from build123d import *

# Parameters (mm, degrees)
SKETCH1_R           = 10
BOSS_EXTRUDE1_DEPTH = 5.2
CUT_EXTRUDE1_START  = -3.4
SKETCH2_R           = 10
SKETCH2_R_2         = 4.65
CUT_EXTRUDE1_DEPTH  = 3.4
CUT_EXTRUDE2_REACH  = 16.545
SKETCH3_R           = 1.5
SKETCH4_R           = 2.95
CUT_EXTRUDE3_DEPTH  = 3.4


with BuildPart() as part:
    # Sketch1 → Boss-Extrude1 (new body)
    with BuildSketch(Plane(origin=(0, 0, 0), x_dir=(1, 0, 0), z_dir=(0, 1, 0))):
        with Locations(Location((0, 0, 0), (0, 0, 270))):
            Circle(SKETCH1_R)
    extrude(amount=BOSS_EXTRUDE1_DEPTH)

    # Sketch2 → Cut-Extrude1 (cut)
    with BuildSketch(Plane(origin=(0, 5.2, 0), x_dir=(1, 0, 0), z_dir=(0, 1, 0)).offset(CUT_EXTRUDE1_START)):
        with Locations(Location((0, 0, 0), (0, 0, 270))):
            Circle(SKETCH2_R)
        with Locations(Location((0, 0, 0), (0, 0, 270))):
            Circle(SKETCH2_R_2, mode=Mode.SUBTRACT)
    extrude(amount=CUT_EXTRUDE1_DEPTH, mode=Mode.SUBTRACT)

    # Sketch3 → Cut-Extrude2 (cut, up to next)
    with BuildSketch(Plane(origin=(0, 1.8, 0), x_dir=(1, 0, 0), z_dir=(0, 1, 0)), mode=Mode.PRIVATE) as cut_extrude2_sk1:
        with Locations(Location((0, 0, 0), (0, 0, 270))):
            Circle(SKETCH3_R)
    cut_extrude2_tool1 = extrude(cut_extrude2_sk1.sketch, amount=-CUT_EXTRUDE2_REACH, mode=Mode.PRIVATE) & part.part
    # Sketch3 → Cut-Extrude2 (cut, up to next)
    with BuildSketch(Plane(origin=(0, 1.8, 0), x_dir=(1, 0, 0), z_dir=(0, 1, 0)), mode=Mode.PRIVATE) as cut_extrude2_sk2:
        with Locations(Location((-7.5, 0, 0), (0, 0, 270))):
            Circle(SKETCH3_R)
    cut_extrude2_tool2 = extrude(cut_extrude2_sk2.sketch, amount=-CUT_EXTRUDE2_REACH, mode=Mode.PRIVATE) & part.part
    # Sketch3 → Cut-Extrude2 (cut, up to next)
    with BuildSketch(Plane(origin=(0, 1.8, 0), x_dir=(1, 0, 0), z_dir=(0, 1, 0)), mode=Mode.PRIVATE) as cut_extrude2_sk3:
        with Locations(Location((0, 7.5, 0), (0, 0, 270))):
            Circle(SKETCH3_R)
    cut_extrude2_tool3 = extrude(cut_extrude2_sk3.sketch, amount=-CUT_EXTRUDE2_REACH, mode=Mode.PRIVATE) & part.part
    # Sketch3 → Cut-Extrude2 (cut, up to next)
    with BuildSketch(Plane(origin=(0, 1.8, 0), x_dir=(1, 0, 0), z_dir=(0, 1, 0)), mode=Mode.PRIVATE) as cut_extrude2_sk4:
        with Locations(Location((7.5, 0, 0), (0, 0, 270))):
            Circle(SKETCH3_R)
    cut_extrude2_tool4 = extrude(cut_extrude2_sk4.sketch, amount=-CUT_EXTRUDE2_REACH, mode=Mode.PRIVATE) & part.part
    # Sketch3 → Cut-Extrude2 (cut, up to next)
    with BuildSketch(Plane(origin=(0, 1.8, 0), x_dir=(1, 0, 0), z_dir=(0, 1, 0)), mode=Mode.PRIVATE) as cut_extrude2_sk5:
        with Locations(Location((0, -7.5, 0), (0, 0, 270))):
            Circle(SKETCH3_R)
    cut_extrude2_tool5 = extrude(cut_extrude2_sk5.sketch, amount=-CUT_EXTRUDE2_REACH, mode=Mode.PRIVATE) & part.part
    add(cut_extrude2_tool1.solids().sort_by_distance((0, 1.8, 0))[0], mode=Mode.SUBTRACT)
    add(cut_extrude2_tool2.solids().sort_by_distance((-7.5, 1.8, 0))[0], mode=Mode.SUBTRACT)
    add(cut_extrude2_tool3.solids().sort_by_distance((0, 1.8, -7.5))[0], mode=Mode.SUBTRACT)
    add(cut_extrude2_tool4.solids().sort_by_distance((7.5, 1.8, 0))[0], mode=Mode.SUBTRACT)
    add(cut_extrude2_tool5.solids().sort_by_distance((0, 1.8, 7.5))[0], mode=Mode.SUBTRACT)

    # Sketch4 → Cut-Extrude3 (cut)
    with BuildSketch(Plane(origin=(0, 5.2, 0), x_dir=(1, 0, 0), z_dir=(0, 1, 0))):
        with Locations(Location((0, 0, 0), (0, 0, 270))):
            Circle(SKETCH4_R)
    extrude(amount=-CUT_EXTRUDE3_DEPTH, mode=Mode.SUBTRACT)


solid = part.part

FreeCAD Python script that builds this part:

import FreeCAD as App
import Part
import Sketcher

V = App.Vector
Q = App.Units.Quantity

doc = App.newDocument("Part")
body = doc.addObject("PartDesign::Body", "Body")

sketch1 = doc.addObject("Sketcher::SketchObject", "Sketch")
body.addObject(sketch1)
sketch1.AttachmentSupport = (doc.XZ_Plane, [""])
sketch1.MapMode = "FlatFace"
sketch1.addGeometry(Part.Circle(V(0, 0, 0), V(0, 0, 1), 10), False)
sketch1.addConstraint([
    Sketcher.Constraint("Coincident", 0, 3, -1, 1),
    Sketcher.Constraint("Diameter", 0, Q("20 mm")),
])
pad1 = doc.addObject("PartDesign::Pad", "Pad")
body.addObject(pad1)
pad1.Profile = sketch1
pad1.Length = 5.2
pad1.Reversed = True

sketch2 = doc.addObject("Sketcher::SketchObject", "Sketch001")
body.addObject(sketch2)
sketch2.AttachmentSupport = (doc.XZ_Plane, [""])
sketch2.MapMode = "FlatFace"
sketch2.AttachmentOffset = App.Placement(V(0, 0, -1.8), App.Rotation())
sketch2.addGeometry([
    Part.Circle(V(0, 0, 0), V(0, 0, 1), 10),
    Part.Circle(V(0, 0, 0), V(0, 0, 1), 4.7),
], False)
sketch2.addConstraint([
    Sketcher.Constraint("Coincident", 0, 3, -1, 1),
    Sketcher.Constraint("Coincident", 1, 3, -1, 1),
    Sketcher.Constraint("Diameter", 0, Q("20 mm")),
    Sketcher.Constraint("Diameter", 1, Q("9.3 mm")),
])
pocket1 = doc.addObject("PartDesign::Pocket", "Pocket")
body.addObject(pocket1)
pocket1.Profile = sketch2
pocket1.Length = 3.4

sketch3 = doc.addObject("Sketcher::SketchObject", "Sketch002")
body.addObject(sketch3)
sketch3.AttachmentSupport = (doc.XZ_Plane, [""])
sketch3.MapMode = "FlatFace"
sketch3.AttachmentOffset = App.Placement(V(0, 0, -1.8), App.Rotation())
sketch3.addGeometry(Part.Circle(V(0, 0, 0), V(0, 0, 1), 1.5), False)
sketch3.addConstraint([
    Sketcher.Constraint("Coincident", 0, 3, -1, 1),
    Sketcher.Constraint("Diameter", 0, Q("3 mm")),
])
pocket2 = doc.addObject("PartDesign::Pocket", "Pocket001")
body.addObject(pocket2)
pocket2.Profile = sketch3
pocket2.Type = "UpToFirst"
pocket2.Reversed = True

sketch4 = doc.addObject("Sketcher::SketchObject", "Sketch003")
body.addObject(sketch4)
sketch4.AttachmentSupport = (doc.XZ_Plane, [""])
sketch4.MapMode = "FlatFace"
sketch4.AttachmentOffset = App.Placement(V(0, 0, -1.8), App.Rotation())
sketch4.addGeometry(Part.Circle(V(-7.5, 0, 0), V(0, 0, 1), 1.5), False)
sketch4.addConstraint([
    Sketcher.Constraint("PointOnObject", 0, 3, -1),
    Sketcher.Constraint("Diameter", 0, Q("3 mm")),
    Sketcher.Constraint("DistanceX", 0, 3, -1, 1, Q("7.5 mm")),
])
pocket3 = doc.addObject("PartDesign::Pocket", "Pocket002")
body.addObject(pocket3)
pocket3.Profile = sketch4
pocket3.Type = "UpToFirst"
pocket3.Reversed = True

sketch5 = doc.addObject("Sketcher::SketchObject", "Sketch004")
body.addObject(sketch5)
sketch5.AttachmentSupport = (doc.XZ_Plane, [""])
sketch5.MapMode = "FlatFace"
sketch5.AttachmentOffset = App.Placement(V(0, 0, -1.8), App.Rotation())
sketch5.addGeometry(Part.Circle(V(0, -7.5, 0), V(0, 0, 1), 1.5), False)
sketch5.addConstraint([
    Sketcher.Constraint("PointOnObject", 0, 3, -2),
    Sketcher.Constraint("Diameter", 0, Q("3 mm")),
    Sketcher.Constraint("DistanceY", 0, 3, -1, 1, Q("7.5 mm")),
])
pocket4 = doc.addObject("PartDesign::Pocket", "Pocket003")
body.addObject(pocket4)
pocket4.Profile = sketch5
pocket4.Type = "UpToFirst"
pocket4.Reversed = True

sketch6 = doc.addObject("Sketcher::SketchObject", "Sketch005")
body.addObject(sketch6)
sketch6.AttachmentSupport = (doc.XZ_Plane, [""])
sketch6.MapMode = "FlatFace"
sketch6.AttachmentOffset = App.Placement(V(0, 0, -1.8), App.Rotation())
sketch6.addGeometry(Part.Circle(V(7.5, 0, 0), V(0, 0, 1), 1.5), False)
sketch6.addConstraint([
    Sketcher.Constraint("PointOnObject", 0, 3, -1),
    Sketcher.Constraint("Diameter", 0, Q("3 mm")),
    Sketcher.Constraint("DistanceX", -1, 1, 0, 3, Q("7.5 mm")),
])
pocket5 = doc.addObject("PartDesign::Pocket", "Pocket004")
body.addObject(pocket5)
pocket5.Profile = sketch6
pocket5.Type = "UpToFirst"
pocket5.Reversed = True

sketch7 = doc.addObject("Sketcher::SketchObject", "Sketch006")
body.addObject(sketch7)
sketch7.AttachmentSupport = (doc.XZ_Plane, [""])
sketch7.MapMode = "FlatFace"
sketch7.AttachmentOffset = App.Placement(V(0, 0, -1.8), App.Rotation())
sketch7.addGeometry(Part.Circle(V(0, 7.5, 0), V(0, 0, 1), 1.5), False)
sketch7.addConstraint([
    Sketcher.Constraint("PointOnObject", 0, 3, -2),
    Sketcher.Constraint("Diameter", 0, Q("3 mm")),
    Sketcher.Constraint("DistanceY", -1, 1, 0, 3, Q("7.5 mm")),
])
pocket6 = doc.addObject("PartDesign::Pocket", "Pocket005")
body.addObject(pocket6)
pocket6.Profile = sketch7
pocket6.Type = "UpToFirst"
pocket6.Reversed = True

sketch8 = doc.addObject("Sketcher::SketchObject", "Sketch007")
body.addObject(sketch8)
sketch8.AttachmentSupport = (doc.XZ_Plane, [""])
sketch8.MapMode = "FlatFace"
sketch8.AttachmentOffset = App.Placement(V(0, 0, -5.2), App.Rotation())
sketch8.addGeometry(Part.Circle(V(0, 0, 0), V(0, 0, 1), 3), False)
sketch8.addConstraint([
    Sketcher.Constraint("Coincident", 0, 3, -1, 1),
    Sketcher.Constraint("Diameter", 0, Q("5.9 mm")),
])
pocket7 = doc.addObject("PartDesign::Pocket", "Pocket006")
body.addObject(pocket7)
pocket7.Profile = sketch8
pocket7.Length = 3.4
pocket7.Reversed = True

doc.recompute()
